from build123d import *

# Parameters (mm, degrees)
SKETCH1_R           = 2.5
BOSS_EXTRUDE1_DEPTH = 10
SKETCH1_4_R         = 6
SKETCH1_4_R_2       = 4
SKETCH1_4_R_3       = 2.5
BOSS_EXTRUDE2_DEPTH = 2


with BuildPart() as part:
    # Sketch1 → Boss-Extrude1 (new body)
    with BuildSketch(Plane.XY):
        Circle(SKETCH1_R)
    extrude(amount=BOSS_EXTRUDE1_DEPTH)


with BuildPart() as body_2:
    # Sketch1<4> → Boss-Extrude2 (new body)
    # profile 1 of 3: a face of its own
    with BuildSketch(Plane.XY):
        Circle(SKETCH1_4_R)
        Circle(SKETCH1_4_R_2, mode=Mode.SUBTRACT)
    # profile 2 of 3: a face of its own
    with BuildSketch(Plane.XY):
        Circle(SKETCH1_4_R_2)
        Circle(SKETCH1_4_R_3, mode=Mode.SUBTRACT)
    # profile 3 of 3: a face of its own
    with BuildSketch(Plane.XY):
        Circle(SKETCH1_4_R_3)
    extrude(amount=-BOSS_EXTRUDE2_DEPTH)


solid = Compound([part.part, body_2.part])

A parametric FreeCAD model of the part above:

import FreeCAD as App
import Part
import Sketcher

V = App.Vector
Q = App.Units.Quantity

doc = App.newDocument("Part")
params = doc.addObject("Spreadsheet::Sheet", "Params")
for row, (alias, value) in enumerate([
    ("sketch1_diameter", "5 mm"),
    ("pad1_length", "10 mm"),
    ("sketch2_diameter", "12 mm"),
    ("pad2_length", "2 mm"),
], start=1):
    params.set(f"A{row}", alias)
    params.set(f"B{row}", "=" + value)
    params.setAlias(f"B{row}", alias)

body = doc.addObject("PartDesign::Body", "Body")

sketch1 = body.newObject("Sketcher::SketchObject", "Sketch")
sketch1.AttachmentSupport = (doc.getObject("XY_Plane"), [""])
sketch1.MapMode = "FlatFace"
sketch1.addGeometry(Part.Circle(V(0, 0, 0), V(0, 0, 1), 2.5), False)
sketch1.addConstraint([
    Sketcher.Constraint("Coincident", 0, 3, -1, 1),
    Sketcher.Constraint("Diameter", 0, Q("5 mm")),
])
sketch1.setExpression("Constraints[1]", "Params.sketch1_diameter")
pad1 = body.newObject("PartDesign::Pad", "Pad")
pad1.Profile = sketch1
pad1.setExpression("Length", "Params.pad1_length")
body2 = doc.addObject("PartDesign::Body", "Body001")

sketch2 = body2.newObject("Sketcher::SketchObject", "Sketch001")
sketch2.AttachmentSupport = (doc.getObject("XY_Plane001"), [""])
sketch2.MapMode = "FlatFace"
sketch2.addGeometry(Part.Circle(V(0, 0, 0), V(0, 0, 1), 6), False)
sketch2.addConstraint([
    Sketcher.Constraint("Coincident", 0, 3, -1, 1),
    Sketcher.Constraint("Diameter", 0, Q("12 mm")),
])
sketch2.setExpression("Constraints[1]", "Params.sketch2_diameter")
pad2 = body2.newObject("PartDesign::Pad", "Pad001")
pad2.Profile = sketch2
pad2.setExpression("Length", "Params.pad2_length")
pad2.Reversed = True

doc.recompute()
